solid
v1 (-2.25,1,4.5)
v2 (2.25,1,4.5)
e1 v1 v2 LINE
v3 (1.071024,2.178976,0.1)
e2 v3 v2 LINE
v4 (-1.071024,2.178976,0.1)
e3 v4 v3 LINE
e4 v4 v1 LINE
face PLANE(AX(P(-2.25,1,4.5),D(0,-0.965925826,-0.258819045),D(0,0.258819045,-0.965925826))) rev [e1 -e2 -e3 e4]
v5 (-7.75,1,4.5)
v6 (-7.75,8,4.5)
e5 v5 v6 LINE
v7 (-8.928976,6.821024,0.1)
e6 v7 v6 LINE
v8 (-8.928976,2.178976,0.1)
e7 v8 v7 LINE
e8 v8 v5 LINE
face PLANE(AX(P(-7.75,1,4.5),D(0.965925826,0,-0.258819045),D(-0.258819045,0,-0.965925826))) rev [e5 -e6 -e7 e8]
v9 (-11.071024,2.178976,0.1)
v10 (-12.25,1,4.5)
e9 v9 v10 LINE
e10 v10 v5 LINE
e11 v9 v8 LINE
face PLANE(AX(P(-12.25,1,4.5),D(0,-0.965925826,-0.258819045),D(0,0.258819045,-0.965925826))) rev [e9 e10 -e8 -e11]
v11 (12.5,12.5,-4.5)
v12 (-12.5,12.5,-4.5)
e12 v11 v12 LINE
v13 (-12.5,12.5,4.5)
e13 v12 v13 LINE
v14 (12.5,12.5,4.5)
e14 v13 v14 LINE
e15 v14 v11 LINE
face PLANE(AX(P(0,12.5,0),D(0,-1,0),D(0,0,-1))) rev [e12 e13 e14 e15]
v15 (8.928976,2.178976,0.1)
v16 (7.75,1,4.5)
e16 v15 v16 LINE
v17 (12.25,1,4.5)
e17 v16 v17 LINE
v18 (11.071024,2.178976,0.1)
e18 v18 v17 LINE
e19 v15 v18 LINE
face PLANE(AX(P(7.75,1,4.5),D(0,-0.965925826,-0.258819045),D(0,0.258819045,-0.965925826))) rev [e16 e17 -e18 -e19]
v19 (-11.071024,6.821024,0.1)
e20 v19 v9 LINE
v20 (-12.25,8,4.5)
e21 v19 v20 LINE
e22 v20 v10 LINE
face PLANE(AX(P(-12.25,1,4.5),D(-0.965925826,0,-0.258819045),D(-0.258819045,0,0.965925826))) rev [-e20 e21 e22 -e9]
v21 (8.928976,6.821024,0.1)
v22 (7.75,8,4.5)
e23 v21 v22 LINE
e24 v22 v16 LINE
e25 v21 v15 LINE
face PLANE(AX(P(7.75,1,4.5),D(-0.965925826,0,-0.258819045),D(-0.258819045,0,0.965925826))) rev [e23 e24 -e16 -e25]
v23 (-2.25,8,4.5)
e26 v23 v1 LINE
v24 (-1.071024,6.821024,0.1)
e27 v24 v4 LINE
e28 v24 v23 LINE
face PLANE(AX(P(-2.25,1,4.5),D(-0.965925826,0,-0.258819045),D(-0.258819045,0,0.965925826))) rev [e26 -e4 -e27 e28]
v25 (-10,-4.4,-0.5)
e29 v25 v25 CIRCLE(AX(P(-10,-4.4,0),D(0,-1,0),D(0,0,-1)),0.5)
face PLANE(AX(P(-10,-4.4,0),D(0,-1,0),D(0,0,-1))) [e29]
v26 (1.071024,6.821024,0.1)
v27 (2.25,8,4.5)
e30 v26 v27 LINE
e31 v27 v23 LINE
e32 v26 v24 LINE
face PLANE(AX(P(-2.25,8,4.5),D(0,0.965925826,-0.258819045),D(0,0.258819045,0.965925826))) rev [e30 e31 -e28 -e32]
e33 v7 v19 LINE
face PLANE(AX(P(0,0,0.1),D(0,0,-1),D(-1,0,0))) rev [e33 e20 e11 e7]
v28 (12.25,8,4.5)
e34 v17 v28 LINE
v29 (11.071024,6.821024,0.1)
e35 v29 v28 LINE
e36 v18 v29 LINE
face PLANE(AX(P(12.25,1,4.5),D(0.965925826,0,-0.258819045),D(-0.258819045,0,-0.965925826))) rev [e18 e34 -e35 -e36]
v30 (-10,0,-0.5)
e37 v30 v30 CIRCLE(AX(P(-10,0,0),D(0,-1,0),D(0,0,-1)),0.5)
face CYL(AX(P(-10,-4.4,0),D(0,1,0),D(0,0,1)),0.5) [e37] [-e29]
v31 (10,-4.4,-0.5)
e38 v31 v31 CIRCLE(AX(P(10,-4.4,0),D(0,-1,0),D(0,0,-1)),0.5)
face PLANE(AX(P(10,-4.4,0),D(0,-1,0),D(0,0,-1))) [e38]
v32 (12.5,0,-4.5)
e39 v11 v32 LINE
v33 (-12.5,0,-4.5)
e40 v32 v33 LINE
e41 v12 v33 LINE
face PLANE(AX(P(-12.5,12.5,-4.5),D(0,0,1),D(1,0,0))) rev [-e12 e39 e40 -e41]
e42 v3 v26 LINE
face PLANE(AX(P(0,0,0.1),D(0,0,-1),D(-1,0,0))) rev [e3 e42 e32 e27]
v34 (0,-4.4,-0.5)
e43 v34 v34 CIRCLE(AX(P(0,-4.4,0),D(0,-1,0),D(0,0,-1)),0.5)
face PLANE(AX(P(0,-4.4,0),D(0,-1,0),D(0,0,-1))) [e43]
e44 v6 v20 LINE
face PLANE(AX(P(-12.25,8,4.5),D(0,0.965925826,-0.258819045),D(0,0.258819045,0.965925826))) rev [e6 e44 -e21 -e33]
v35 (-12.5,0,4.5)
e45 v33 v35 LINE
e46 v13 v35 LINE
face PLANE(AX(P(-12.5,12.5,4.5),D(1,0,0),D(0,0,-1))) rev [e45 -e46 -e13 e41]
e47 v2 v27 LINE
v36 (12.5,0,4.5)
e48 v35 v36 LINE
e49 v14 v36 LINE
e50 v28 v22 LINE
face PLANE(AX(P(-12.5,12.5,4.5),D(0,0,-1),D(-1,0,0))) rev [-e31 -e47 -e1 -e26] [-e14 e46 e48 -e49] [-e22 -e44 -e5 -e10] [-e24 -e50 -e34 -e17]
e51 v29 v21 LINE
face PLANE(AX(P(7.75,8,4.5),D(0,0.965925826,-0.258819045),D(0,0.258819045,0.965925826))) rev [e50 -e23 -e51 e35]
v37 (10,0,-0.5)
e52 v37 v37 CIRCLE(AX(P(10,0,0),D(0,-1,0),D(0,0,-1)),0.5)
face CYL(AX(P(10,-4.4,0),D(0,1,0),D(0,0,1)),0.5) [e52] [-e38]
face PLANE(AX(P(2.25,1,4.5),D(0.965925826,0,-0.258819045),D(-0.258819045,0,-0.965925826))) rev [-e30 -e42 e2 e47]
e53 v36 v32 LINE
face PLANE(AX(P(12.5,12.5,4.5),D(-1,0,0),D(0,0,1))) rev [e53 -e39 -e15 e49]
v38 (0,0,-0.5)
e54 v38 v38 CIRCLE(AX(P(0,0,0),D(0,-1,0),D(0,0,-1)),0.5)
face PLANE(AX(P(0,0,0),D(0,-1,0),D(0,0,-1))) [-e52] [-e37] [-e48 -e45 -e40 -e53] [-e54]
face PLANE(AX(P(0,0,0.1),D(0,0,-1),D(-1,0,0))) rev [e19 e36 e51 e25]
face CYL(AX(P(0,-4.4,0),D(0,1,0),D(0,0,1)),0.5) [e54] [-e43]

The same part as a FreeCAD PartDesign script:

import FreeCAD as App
import Part
import Sketcher

V = App.Vector
Q = App.Units.Quantity


def faces_at(feature, points):
    """Names of the faces that lie closest to the given points."""
    faces = feature.Shape.Faces
    near = lambda p: min(range(len(faces)), key=lambda i: faces[i].distToShape(Part.Vertex(*p))[0])
    return sorted({f"Face{near(p) + 1}" for p in points})


def add_polygon(sketch, points):
    """Adds a closed chain of lines whose ends are joined by coincident constraints."""
    first, n = sketch.GeometryCount, len(points)
    for a, b in zip(points, points[1:] + points[:1]):
        sketch.addGeometry(Part.LineSegment(App.Vector(*a, 0), App.Vector(*b, 0)), False)
    for i in range(n):
        sketch.addConstraint(Sketcher.Constraint("Coincident", first + i, 2, first + (i + 1) % n, 1))

doc = App.newDocument("Part")
params = doc.addObject("Spreadsheet::Sheet", "Params")
for row, (alias, value) in enumerate([
    ("sketch1_width", "25 mm"),
    ("sketch1_height", "9 mm"),
    ("pad1_length", "12.5 mm"),
    ("sketch2_diameter", "1 mm"),
    ("pad2_length", "4.4 mm"),
    ("sketch3_height", "7 mm"),
    ("sketch3_width", "4.5 mm"),
    ("pad3_length", "4.4 mm"),
    ("draft_angle", "15 deg"),
    ("sketch4_height", "7 mm"),
    ("sketch4_width", "4.5 mm"),
    ("pad4_length", "4.4 mm"),
    ("draft2_angle", "15 deg"),
    ("sketch5_height", "7 mm"),
    ("sketch5_width", "4.5 mm"),
    ("pad5_length", "4.4 mm"),
    ("draft3_angle", "15 deg"),
], start=1):
    params.set(f"A{row}", alias)
    params.set(f"B{row}", "=" + value)
    params.setAlias(f"B{row}", alias)

body = doc.addObject("PartDesign::Body", "Body")

# Sketch on XZ plane
sketch1 = body.newObject("Sketcher::SketchObject", "Sketch")
sketch1.AttachmentSupport = (doc.getObject("XZ_Plane"), [""])
sketch1.MapMode = "FlatFace"
add_polygon(sketch1, [(-12.5, -4.5), (-12.5, 4.5), (12.5, 4.5), (12.5, -4.5)])  # lines 0-3
sketch1.addConstraint([
    Sketcher.Constraint("Vertical", 0),
    Sketcher.Constraint("Horizontal", 1),
    Sketcher.Constraint("Vertical", 2),
    Sketcher.Constraint("Horizontal", 3),
    Sketcher.Constraint("Symmetric", 0, 2, 2, 2, -1, 1),
    Sketcher.Constraint("DistanceX", 1, 1, 1, 2, Q("25 mm")),
    Sketcher.Constraint("DistanceY", 0, 1, 0, 2, Q("9 mm")),
])
sketch1.setExpression("Constraints[9]", "Params.sketch1_width")
sketch1.setExpression("Constraints[10]", "Params.sketch1_height")
pad1 = body.newObject("PartDesign::Pad", "Pad")
pad1.Profile = sketch1
pad1.setExpression("Length", "Params.pad1_length")
pad1.Reversed = True

# Sketch on XZ plane
sketch2 = body.newObject("Sketcher::SketchObject", "Sketch001")
sketch2.AttachmentSupport = (doc.getObject("XZ_Plane"), [""])
sketch2.MapMode = "FlatFace"
sketch2.addGeometry([
    Part.Circle(V(0, 0, 0), V(0, 0, 1), 0.5),
    Part.Circle(V(-10, 0, 0), V(0, 0, 1), 0.5),
    Part.Circle(V(10, 0, 0), V(0, 0, 1), 0.5),
], False)
sketch2.addConstraint([
    Sketcher.Constraint("Coincident", 0, 3, -1, 1),
    Sketcher.Constraint("Equal", 0, 1),
    Sketcher.Constraint("Equal", 1, 2),
    Sketcher.Constraint("Symmetric", 1, 3, 2, 3, -1, 1),
    Sketcher.Constraint("PointOnObject", 1, 3, -1),
    Sketcher.Constraint("Diameter", 0, Q("1 mm")),
    Sketcher.Constraint("DistanceX", 1, 3, -1, 1, Q("10 mm")),
])
sketch2.setExpression("Constraints[5]", "Params.sketch2_diameter")
pad2 = body.newObject("PartDesign::Pad", "Pad001")
pad2.Profile = sketch2
pad2.setExpression("Length", "Params.pad2_length")
body2 = doc.addObject("PartDesign::Body", "Body001")

# Sketch on XY plane
sketch3 = body2.newObject("Sketcher::SketchObject", "Sketch002")
sketch3.AttachmentSupport = (doc.getObject("XY_Plane001"), [""])
sketch3.MapMode = "FlatFace"
sketch3.AttachmentOffset = App.Placement(V(0, 0, 4.5), App.Rotation())
add_polygon(sketch3, [(-2.25, 8), (-2.25, 1), (2.25, 1), (2.25, 8)])  # lines 0-3
sketch3.addConstraint([
    Sketcher.Constraint("Vertical", 0),
    Sketcher.Constraint("Horizontal", 1),
    Sketcher.Constraint("Vertical", 2),
    Sketcher.Constraint("Horizontal", 3),
    Sketcher.Constraint("DistanceY", 0, 2, 0, 1, Q("7 mm")),
    Sketcher.Constraint("DistanceX", 1, 1, 1, 2, Q("4.5 mm")),
    Sketcher.Constraint("DistanceY", -1, 1, 0, 2, Q("1 mm")),
    Sketcher.Constraint("DistanceX", 0, 2, -1, 1, Q("2.25 mm")),
])
sketch3.setExpression("Constraints[8]", "Params.sketch3_height")
sketch3.setExpression("Constraints[9]", "Params.sketch3_width")
pad3 = body2.newObject("PartDesign::Pad", "Pad002")
pad3.Profile = sketch3
pad3.setExpression("Length", "Params.pad3_length")
pad3.Reversed = True
doc.recompute()

datumplane = body2.newObject("PartDesign::Plane", "DatumPlane")
datumplane.AttachmentSupport = (doc.getObject("XY_Plane001"), [""])
datumplane.MapMode = "FlatFace"
datumplane.AttachmentOffset = App.Placement(V(0, 0, 4.5), App.Rotation())
draft = body2.newObject("PartDesign::Draft", "Draft")
draft.Base = (pad3, faces_at(pad3, [
    (0, 1, 2.3),
    (2.25, 4.5, 2.3),
    (0, 8, 2.3),
    (-2.25, 4.5, 2.3),
]))
draft.NeutralPlane = (datumplane, [""])
draft.setExpression("Angle", "Params.draft_angle")
draft.Reversed = True
doc.recompute()

boolean = body.newObject("PartDesign::Boolean", "Boolean")
boolean.Type = "Cut"
boolean.addObjects([body2])
body3 = doc.addObject("PartDesign::Body", "Body002")

# Sketch on XY plane
sketch4 = body3.newObject("Sketcher::SketchObject", "Sketch003")
sketch4.AttachmentSupport = (doc.getObject("XY_Plane002"), [""])
sketch4.MapMode = "FlatFace"
sketch4.AttachmentOffset = App.Placement(V(0, 0, 4.5), App.Rotation())
add_polygon(sketch4, [(7.75, 8), (7.75, 1), (12.25, 1), (12.25, 8)])  # lines 0-3
sketch4.addConstraint([
    Sketcher.Constraint("Vertical", 0),
    Sketcher.Constraint("Horizontal", 1),
    Sketcher.Constraint("Vertical", 2),
    Sketcher.Constraint("Horizontal", 3),
    Sketcher.Constraint("DistanceY", 0, 2, 0, 1, Q("7 mm")),
    Sketcher.Constraint("DistanceX", 1, 1, 1, 2, Q("4.5 mm")),
    Sketcher.Constraint("DistanceY", -1, 1, 0, 2, Q("1 mm")),
    Sketcher.Constraint("DistanceX", -1, 1, 0, 2, Q("7.75 mm")),
])
sketch4.setExpression("Constraints[8]", "Params.sketch4_height")
sketch4.setExpression("Constraints[9]", "Params.sketch4_width")
pad4 = body3.newObject("PartDesign::Pad", "Pad003")
pad4.Profile = sketch4
pad4.setExpression("Length", "Params.pad4_length")
pad4.Reversed = True
doc.recompute()

datumplane2 = body3.newObject("PartDesign::Plane", "DatumPlane001")
datumplane2.AttachmentSupport = (doc.getObject("XY_Plane002"), [""])
datumplane2.MapMode = "FlatFace"
datumplane2.AttachmentOffset = App.Placement(V(0, 0, 4.5), App.Rotation())
draft2 = body3.newObject("PartDesign::Draft", "Draft001")
draft2.Base = (pad4, faces_at(pad4, [
    (10, 1, 2.3),
    (12.25, 4.5, 2.3),
    (10, 8, 2.3),
    (7.75, 4.5, 2.3),
]))
draft2.NeutralPlane = (datumplane2, [""])
draft2.setExpression("Angle", "Params.draft2_angle")
draft2.Reversed = True
doc.recompute()

boolean2 = body.newObject("PartDesign::Boolean", "Boolean001")
boolean2.Type = "Cut"
boolean2.addObjects([body3])
body4 = doc.addObject("PartDesign::Body", "Body003")

# Sketch on XY plane
sketch5 = body4.newObject("Sketcher::SketchObject", "Sketch004")
sketch5.AttachmentSupport = (doc.getObject("XY_Plane003"), [""])
sketch5.MapMode = "FlatFace"
sketch5.AttachmentOffset = App.Placement(V(0, 0, 4.5), App.Rotation())
add_polygon(sketch5, [(-12.25, 8), (-12.25, 1), (-7.75, 1), (-7.75, 8)])  # lines 0-3
sketch5.addConstraint([
    Sketcher.Constraint("Vertical", 0),
    Sketcher.Constraint("Horizontal", 1),
    Sketcher.Constraint("Vertical", 2),
    Sketcher.Constraint("Horizontal", 3),
    Sketcher.Constraint("DistanceY", 0, 2, 0, 1, Q("7 mm")),
    Sketcher.Constraint("DistanceX", 1, 1, 1, 2, Q("4.5 mm")),
    Sketcher.Constraint("DistanceY", -1, 1, 0, 2, Q("1 mm")),
    Sketcher.Constraint("DistanceX", 0, 2, -1, 1, Q("12.25 mm")),
])
sketch5.setExpression("Constraints[8]", "Params.sketch5_height")
sketch5.setExpression("Constraints[9]", "Params.sketch5_width")
pad5 = body4.newObject("PartDesign::Pad", "Pad004")
pad5.Profile = sketch5
pad5.setExpression("Length", "Params.pad5_length")
pad5.Reversed = True
doc.recompute()

datumplane3 = body4.newObject("PartDesign::Plane", "DatumPlane002")
datumplane3.AttachmentSupport = (doc.getObject("XY_Plane003"), [""])
datumplane3.MapMode = "FlatFace"
datumplane3.AttachmentOffset = App.Placement(V(0, 0, 4.5), App.Rotation())
draft3 = body4.newObject("PartDesign::Draft", "Draft002")
draft3.Base = (pad5, faces_at(pad5, [
    (-10, 1, 2.3),
    (-7.75, 4.5, 2.3),
    (-10, 8, 2.3),
    (-12.25, 4.5, 2.3),
]))
draft3.NeutralPlane = (datumplane3, [""])
draft3.setExpression("Angle", "Params.draft3_angle")
draft3.Reversed = True
doc.recompute()

boolean3 = body.newObject("PartDesign::Boolean", "Boolean002")
boolean3.Type = "Cut"
boolean3.addObjects([body4])

doc.recompute()
